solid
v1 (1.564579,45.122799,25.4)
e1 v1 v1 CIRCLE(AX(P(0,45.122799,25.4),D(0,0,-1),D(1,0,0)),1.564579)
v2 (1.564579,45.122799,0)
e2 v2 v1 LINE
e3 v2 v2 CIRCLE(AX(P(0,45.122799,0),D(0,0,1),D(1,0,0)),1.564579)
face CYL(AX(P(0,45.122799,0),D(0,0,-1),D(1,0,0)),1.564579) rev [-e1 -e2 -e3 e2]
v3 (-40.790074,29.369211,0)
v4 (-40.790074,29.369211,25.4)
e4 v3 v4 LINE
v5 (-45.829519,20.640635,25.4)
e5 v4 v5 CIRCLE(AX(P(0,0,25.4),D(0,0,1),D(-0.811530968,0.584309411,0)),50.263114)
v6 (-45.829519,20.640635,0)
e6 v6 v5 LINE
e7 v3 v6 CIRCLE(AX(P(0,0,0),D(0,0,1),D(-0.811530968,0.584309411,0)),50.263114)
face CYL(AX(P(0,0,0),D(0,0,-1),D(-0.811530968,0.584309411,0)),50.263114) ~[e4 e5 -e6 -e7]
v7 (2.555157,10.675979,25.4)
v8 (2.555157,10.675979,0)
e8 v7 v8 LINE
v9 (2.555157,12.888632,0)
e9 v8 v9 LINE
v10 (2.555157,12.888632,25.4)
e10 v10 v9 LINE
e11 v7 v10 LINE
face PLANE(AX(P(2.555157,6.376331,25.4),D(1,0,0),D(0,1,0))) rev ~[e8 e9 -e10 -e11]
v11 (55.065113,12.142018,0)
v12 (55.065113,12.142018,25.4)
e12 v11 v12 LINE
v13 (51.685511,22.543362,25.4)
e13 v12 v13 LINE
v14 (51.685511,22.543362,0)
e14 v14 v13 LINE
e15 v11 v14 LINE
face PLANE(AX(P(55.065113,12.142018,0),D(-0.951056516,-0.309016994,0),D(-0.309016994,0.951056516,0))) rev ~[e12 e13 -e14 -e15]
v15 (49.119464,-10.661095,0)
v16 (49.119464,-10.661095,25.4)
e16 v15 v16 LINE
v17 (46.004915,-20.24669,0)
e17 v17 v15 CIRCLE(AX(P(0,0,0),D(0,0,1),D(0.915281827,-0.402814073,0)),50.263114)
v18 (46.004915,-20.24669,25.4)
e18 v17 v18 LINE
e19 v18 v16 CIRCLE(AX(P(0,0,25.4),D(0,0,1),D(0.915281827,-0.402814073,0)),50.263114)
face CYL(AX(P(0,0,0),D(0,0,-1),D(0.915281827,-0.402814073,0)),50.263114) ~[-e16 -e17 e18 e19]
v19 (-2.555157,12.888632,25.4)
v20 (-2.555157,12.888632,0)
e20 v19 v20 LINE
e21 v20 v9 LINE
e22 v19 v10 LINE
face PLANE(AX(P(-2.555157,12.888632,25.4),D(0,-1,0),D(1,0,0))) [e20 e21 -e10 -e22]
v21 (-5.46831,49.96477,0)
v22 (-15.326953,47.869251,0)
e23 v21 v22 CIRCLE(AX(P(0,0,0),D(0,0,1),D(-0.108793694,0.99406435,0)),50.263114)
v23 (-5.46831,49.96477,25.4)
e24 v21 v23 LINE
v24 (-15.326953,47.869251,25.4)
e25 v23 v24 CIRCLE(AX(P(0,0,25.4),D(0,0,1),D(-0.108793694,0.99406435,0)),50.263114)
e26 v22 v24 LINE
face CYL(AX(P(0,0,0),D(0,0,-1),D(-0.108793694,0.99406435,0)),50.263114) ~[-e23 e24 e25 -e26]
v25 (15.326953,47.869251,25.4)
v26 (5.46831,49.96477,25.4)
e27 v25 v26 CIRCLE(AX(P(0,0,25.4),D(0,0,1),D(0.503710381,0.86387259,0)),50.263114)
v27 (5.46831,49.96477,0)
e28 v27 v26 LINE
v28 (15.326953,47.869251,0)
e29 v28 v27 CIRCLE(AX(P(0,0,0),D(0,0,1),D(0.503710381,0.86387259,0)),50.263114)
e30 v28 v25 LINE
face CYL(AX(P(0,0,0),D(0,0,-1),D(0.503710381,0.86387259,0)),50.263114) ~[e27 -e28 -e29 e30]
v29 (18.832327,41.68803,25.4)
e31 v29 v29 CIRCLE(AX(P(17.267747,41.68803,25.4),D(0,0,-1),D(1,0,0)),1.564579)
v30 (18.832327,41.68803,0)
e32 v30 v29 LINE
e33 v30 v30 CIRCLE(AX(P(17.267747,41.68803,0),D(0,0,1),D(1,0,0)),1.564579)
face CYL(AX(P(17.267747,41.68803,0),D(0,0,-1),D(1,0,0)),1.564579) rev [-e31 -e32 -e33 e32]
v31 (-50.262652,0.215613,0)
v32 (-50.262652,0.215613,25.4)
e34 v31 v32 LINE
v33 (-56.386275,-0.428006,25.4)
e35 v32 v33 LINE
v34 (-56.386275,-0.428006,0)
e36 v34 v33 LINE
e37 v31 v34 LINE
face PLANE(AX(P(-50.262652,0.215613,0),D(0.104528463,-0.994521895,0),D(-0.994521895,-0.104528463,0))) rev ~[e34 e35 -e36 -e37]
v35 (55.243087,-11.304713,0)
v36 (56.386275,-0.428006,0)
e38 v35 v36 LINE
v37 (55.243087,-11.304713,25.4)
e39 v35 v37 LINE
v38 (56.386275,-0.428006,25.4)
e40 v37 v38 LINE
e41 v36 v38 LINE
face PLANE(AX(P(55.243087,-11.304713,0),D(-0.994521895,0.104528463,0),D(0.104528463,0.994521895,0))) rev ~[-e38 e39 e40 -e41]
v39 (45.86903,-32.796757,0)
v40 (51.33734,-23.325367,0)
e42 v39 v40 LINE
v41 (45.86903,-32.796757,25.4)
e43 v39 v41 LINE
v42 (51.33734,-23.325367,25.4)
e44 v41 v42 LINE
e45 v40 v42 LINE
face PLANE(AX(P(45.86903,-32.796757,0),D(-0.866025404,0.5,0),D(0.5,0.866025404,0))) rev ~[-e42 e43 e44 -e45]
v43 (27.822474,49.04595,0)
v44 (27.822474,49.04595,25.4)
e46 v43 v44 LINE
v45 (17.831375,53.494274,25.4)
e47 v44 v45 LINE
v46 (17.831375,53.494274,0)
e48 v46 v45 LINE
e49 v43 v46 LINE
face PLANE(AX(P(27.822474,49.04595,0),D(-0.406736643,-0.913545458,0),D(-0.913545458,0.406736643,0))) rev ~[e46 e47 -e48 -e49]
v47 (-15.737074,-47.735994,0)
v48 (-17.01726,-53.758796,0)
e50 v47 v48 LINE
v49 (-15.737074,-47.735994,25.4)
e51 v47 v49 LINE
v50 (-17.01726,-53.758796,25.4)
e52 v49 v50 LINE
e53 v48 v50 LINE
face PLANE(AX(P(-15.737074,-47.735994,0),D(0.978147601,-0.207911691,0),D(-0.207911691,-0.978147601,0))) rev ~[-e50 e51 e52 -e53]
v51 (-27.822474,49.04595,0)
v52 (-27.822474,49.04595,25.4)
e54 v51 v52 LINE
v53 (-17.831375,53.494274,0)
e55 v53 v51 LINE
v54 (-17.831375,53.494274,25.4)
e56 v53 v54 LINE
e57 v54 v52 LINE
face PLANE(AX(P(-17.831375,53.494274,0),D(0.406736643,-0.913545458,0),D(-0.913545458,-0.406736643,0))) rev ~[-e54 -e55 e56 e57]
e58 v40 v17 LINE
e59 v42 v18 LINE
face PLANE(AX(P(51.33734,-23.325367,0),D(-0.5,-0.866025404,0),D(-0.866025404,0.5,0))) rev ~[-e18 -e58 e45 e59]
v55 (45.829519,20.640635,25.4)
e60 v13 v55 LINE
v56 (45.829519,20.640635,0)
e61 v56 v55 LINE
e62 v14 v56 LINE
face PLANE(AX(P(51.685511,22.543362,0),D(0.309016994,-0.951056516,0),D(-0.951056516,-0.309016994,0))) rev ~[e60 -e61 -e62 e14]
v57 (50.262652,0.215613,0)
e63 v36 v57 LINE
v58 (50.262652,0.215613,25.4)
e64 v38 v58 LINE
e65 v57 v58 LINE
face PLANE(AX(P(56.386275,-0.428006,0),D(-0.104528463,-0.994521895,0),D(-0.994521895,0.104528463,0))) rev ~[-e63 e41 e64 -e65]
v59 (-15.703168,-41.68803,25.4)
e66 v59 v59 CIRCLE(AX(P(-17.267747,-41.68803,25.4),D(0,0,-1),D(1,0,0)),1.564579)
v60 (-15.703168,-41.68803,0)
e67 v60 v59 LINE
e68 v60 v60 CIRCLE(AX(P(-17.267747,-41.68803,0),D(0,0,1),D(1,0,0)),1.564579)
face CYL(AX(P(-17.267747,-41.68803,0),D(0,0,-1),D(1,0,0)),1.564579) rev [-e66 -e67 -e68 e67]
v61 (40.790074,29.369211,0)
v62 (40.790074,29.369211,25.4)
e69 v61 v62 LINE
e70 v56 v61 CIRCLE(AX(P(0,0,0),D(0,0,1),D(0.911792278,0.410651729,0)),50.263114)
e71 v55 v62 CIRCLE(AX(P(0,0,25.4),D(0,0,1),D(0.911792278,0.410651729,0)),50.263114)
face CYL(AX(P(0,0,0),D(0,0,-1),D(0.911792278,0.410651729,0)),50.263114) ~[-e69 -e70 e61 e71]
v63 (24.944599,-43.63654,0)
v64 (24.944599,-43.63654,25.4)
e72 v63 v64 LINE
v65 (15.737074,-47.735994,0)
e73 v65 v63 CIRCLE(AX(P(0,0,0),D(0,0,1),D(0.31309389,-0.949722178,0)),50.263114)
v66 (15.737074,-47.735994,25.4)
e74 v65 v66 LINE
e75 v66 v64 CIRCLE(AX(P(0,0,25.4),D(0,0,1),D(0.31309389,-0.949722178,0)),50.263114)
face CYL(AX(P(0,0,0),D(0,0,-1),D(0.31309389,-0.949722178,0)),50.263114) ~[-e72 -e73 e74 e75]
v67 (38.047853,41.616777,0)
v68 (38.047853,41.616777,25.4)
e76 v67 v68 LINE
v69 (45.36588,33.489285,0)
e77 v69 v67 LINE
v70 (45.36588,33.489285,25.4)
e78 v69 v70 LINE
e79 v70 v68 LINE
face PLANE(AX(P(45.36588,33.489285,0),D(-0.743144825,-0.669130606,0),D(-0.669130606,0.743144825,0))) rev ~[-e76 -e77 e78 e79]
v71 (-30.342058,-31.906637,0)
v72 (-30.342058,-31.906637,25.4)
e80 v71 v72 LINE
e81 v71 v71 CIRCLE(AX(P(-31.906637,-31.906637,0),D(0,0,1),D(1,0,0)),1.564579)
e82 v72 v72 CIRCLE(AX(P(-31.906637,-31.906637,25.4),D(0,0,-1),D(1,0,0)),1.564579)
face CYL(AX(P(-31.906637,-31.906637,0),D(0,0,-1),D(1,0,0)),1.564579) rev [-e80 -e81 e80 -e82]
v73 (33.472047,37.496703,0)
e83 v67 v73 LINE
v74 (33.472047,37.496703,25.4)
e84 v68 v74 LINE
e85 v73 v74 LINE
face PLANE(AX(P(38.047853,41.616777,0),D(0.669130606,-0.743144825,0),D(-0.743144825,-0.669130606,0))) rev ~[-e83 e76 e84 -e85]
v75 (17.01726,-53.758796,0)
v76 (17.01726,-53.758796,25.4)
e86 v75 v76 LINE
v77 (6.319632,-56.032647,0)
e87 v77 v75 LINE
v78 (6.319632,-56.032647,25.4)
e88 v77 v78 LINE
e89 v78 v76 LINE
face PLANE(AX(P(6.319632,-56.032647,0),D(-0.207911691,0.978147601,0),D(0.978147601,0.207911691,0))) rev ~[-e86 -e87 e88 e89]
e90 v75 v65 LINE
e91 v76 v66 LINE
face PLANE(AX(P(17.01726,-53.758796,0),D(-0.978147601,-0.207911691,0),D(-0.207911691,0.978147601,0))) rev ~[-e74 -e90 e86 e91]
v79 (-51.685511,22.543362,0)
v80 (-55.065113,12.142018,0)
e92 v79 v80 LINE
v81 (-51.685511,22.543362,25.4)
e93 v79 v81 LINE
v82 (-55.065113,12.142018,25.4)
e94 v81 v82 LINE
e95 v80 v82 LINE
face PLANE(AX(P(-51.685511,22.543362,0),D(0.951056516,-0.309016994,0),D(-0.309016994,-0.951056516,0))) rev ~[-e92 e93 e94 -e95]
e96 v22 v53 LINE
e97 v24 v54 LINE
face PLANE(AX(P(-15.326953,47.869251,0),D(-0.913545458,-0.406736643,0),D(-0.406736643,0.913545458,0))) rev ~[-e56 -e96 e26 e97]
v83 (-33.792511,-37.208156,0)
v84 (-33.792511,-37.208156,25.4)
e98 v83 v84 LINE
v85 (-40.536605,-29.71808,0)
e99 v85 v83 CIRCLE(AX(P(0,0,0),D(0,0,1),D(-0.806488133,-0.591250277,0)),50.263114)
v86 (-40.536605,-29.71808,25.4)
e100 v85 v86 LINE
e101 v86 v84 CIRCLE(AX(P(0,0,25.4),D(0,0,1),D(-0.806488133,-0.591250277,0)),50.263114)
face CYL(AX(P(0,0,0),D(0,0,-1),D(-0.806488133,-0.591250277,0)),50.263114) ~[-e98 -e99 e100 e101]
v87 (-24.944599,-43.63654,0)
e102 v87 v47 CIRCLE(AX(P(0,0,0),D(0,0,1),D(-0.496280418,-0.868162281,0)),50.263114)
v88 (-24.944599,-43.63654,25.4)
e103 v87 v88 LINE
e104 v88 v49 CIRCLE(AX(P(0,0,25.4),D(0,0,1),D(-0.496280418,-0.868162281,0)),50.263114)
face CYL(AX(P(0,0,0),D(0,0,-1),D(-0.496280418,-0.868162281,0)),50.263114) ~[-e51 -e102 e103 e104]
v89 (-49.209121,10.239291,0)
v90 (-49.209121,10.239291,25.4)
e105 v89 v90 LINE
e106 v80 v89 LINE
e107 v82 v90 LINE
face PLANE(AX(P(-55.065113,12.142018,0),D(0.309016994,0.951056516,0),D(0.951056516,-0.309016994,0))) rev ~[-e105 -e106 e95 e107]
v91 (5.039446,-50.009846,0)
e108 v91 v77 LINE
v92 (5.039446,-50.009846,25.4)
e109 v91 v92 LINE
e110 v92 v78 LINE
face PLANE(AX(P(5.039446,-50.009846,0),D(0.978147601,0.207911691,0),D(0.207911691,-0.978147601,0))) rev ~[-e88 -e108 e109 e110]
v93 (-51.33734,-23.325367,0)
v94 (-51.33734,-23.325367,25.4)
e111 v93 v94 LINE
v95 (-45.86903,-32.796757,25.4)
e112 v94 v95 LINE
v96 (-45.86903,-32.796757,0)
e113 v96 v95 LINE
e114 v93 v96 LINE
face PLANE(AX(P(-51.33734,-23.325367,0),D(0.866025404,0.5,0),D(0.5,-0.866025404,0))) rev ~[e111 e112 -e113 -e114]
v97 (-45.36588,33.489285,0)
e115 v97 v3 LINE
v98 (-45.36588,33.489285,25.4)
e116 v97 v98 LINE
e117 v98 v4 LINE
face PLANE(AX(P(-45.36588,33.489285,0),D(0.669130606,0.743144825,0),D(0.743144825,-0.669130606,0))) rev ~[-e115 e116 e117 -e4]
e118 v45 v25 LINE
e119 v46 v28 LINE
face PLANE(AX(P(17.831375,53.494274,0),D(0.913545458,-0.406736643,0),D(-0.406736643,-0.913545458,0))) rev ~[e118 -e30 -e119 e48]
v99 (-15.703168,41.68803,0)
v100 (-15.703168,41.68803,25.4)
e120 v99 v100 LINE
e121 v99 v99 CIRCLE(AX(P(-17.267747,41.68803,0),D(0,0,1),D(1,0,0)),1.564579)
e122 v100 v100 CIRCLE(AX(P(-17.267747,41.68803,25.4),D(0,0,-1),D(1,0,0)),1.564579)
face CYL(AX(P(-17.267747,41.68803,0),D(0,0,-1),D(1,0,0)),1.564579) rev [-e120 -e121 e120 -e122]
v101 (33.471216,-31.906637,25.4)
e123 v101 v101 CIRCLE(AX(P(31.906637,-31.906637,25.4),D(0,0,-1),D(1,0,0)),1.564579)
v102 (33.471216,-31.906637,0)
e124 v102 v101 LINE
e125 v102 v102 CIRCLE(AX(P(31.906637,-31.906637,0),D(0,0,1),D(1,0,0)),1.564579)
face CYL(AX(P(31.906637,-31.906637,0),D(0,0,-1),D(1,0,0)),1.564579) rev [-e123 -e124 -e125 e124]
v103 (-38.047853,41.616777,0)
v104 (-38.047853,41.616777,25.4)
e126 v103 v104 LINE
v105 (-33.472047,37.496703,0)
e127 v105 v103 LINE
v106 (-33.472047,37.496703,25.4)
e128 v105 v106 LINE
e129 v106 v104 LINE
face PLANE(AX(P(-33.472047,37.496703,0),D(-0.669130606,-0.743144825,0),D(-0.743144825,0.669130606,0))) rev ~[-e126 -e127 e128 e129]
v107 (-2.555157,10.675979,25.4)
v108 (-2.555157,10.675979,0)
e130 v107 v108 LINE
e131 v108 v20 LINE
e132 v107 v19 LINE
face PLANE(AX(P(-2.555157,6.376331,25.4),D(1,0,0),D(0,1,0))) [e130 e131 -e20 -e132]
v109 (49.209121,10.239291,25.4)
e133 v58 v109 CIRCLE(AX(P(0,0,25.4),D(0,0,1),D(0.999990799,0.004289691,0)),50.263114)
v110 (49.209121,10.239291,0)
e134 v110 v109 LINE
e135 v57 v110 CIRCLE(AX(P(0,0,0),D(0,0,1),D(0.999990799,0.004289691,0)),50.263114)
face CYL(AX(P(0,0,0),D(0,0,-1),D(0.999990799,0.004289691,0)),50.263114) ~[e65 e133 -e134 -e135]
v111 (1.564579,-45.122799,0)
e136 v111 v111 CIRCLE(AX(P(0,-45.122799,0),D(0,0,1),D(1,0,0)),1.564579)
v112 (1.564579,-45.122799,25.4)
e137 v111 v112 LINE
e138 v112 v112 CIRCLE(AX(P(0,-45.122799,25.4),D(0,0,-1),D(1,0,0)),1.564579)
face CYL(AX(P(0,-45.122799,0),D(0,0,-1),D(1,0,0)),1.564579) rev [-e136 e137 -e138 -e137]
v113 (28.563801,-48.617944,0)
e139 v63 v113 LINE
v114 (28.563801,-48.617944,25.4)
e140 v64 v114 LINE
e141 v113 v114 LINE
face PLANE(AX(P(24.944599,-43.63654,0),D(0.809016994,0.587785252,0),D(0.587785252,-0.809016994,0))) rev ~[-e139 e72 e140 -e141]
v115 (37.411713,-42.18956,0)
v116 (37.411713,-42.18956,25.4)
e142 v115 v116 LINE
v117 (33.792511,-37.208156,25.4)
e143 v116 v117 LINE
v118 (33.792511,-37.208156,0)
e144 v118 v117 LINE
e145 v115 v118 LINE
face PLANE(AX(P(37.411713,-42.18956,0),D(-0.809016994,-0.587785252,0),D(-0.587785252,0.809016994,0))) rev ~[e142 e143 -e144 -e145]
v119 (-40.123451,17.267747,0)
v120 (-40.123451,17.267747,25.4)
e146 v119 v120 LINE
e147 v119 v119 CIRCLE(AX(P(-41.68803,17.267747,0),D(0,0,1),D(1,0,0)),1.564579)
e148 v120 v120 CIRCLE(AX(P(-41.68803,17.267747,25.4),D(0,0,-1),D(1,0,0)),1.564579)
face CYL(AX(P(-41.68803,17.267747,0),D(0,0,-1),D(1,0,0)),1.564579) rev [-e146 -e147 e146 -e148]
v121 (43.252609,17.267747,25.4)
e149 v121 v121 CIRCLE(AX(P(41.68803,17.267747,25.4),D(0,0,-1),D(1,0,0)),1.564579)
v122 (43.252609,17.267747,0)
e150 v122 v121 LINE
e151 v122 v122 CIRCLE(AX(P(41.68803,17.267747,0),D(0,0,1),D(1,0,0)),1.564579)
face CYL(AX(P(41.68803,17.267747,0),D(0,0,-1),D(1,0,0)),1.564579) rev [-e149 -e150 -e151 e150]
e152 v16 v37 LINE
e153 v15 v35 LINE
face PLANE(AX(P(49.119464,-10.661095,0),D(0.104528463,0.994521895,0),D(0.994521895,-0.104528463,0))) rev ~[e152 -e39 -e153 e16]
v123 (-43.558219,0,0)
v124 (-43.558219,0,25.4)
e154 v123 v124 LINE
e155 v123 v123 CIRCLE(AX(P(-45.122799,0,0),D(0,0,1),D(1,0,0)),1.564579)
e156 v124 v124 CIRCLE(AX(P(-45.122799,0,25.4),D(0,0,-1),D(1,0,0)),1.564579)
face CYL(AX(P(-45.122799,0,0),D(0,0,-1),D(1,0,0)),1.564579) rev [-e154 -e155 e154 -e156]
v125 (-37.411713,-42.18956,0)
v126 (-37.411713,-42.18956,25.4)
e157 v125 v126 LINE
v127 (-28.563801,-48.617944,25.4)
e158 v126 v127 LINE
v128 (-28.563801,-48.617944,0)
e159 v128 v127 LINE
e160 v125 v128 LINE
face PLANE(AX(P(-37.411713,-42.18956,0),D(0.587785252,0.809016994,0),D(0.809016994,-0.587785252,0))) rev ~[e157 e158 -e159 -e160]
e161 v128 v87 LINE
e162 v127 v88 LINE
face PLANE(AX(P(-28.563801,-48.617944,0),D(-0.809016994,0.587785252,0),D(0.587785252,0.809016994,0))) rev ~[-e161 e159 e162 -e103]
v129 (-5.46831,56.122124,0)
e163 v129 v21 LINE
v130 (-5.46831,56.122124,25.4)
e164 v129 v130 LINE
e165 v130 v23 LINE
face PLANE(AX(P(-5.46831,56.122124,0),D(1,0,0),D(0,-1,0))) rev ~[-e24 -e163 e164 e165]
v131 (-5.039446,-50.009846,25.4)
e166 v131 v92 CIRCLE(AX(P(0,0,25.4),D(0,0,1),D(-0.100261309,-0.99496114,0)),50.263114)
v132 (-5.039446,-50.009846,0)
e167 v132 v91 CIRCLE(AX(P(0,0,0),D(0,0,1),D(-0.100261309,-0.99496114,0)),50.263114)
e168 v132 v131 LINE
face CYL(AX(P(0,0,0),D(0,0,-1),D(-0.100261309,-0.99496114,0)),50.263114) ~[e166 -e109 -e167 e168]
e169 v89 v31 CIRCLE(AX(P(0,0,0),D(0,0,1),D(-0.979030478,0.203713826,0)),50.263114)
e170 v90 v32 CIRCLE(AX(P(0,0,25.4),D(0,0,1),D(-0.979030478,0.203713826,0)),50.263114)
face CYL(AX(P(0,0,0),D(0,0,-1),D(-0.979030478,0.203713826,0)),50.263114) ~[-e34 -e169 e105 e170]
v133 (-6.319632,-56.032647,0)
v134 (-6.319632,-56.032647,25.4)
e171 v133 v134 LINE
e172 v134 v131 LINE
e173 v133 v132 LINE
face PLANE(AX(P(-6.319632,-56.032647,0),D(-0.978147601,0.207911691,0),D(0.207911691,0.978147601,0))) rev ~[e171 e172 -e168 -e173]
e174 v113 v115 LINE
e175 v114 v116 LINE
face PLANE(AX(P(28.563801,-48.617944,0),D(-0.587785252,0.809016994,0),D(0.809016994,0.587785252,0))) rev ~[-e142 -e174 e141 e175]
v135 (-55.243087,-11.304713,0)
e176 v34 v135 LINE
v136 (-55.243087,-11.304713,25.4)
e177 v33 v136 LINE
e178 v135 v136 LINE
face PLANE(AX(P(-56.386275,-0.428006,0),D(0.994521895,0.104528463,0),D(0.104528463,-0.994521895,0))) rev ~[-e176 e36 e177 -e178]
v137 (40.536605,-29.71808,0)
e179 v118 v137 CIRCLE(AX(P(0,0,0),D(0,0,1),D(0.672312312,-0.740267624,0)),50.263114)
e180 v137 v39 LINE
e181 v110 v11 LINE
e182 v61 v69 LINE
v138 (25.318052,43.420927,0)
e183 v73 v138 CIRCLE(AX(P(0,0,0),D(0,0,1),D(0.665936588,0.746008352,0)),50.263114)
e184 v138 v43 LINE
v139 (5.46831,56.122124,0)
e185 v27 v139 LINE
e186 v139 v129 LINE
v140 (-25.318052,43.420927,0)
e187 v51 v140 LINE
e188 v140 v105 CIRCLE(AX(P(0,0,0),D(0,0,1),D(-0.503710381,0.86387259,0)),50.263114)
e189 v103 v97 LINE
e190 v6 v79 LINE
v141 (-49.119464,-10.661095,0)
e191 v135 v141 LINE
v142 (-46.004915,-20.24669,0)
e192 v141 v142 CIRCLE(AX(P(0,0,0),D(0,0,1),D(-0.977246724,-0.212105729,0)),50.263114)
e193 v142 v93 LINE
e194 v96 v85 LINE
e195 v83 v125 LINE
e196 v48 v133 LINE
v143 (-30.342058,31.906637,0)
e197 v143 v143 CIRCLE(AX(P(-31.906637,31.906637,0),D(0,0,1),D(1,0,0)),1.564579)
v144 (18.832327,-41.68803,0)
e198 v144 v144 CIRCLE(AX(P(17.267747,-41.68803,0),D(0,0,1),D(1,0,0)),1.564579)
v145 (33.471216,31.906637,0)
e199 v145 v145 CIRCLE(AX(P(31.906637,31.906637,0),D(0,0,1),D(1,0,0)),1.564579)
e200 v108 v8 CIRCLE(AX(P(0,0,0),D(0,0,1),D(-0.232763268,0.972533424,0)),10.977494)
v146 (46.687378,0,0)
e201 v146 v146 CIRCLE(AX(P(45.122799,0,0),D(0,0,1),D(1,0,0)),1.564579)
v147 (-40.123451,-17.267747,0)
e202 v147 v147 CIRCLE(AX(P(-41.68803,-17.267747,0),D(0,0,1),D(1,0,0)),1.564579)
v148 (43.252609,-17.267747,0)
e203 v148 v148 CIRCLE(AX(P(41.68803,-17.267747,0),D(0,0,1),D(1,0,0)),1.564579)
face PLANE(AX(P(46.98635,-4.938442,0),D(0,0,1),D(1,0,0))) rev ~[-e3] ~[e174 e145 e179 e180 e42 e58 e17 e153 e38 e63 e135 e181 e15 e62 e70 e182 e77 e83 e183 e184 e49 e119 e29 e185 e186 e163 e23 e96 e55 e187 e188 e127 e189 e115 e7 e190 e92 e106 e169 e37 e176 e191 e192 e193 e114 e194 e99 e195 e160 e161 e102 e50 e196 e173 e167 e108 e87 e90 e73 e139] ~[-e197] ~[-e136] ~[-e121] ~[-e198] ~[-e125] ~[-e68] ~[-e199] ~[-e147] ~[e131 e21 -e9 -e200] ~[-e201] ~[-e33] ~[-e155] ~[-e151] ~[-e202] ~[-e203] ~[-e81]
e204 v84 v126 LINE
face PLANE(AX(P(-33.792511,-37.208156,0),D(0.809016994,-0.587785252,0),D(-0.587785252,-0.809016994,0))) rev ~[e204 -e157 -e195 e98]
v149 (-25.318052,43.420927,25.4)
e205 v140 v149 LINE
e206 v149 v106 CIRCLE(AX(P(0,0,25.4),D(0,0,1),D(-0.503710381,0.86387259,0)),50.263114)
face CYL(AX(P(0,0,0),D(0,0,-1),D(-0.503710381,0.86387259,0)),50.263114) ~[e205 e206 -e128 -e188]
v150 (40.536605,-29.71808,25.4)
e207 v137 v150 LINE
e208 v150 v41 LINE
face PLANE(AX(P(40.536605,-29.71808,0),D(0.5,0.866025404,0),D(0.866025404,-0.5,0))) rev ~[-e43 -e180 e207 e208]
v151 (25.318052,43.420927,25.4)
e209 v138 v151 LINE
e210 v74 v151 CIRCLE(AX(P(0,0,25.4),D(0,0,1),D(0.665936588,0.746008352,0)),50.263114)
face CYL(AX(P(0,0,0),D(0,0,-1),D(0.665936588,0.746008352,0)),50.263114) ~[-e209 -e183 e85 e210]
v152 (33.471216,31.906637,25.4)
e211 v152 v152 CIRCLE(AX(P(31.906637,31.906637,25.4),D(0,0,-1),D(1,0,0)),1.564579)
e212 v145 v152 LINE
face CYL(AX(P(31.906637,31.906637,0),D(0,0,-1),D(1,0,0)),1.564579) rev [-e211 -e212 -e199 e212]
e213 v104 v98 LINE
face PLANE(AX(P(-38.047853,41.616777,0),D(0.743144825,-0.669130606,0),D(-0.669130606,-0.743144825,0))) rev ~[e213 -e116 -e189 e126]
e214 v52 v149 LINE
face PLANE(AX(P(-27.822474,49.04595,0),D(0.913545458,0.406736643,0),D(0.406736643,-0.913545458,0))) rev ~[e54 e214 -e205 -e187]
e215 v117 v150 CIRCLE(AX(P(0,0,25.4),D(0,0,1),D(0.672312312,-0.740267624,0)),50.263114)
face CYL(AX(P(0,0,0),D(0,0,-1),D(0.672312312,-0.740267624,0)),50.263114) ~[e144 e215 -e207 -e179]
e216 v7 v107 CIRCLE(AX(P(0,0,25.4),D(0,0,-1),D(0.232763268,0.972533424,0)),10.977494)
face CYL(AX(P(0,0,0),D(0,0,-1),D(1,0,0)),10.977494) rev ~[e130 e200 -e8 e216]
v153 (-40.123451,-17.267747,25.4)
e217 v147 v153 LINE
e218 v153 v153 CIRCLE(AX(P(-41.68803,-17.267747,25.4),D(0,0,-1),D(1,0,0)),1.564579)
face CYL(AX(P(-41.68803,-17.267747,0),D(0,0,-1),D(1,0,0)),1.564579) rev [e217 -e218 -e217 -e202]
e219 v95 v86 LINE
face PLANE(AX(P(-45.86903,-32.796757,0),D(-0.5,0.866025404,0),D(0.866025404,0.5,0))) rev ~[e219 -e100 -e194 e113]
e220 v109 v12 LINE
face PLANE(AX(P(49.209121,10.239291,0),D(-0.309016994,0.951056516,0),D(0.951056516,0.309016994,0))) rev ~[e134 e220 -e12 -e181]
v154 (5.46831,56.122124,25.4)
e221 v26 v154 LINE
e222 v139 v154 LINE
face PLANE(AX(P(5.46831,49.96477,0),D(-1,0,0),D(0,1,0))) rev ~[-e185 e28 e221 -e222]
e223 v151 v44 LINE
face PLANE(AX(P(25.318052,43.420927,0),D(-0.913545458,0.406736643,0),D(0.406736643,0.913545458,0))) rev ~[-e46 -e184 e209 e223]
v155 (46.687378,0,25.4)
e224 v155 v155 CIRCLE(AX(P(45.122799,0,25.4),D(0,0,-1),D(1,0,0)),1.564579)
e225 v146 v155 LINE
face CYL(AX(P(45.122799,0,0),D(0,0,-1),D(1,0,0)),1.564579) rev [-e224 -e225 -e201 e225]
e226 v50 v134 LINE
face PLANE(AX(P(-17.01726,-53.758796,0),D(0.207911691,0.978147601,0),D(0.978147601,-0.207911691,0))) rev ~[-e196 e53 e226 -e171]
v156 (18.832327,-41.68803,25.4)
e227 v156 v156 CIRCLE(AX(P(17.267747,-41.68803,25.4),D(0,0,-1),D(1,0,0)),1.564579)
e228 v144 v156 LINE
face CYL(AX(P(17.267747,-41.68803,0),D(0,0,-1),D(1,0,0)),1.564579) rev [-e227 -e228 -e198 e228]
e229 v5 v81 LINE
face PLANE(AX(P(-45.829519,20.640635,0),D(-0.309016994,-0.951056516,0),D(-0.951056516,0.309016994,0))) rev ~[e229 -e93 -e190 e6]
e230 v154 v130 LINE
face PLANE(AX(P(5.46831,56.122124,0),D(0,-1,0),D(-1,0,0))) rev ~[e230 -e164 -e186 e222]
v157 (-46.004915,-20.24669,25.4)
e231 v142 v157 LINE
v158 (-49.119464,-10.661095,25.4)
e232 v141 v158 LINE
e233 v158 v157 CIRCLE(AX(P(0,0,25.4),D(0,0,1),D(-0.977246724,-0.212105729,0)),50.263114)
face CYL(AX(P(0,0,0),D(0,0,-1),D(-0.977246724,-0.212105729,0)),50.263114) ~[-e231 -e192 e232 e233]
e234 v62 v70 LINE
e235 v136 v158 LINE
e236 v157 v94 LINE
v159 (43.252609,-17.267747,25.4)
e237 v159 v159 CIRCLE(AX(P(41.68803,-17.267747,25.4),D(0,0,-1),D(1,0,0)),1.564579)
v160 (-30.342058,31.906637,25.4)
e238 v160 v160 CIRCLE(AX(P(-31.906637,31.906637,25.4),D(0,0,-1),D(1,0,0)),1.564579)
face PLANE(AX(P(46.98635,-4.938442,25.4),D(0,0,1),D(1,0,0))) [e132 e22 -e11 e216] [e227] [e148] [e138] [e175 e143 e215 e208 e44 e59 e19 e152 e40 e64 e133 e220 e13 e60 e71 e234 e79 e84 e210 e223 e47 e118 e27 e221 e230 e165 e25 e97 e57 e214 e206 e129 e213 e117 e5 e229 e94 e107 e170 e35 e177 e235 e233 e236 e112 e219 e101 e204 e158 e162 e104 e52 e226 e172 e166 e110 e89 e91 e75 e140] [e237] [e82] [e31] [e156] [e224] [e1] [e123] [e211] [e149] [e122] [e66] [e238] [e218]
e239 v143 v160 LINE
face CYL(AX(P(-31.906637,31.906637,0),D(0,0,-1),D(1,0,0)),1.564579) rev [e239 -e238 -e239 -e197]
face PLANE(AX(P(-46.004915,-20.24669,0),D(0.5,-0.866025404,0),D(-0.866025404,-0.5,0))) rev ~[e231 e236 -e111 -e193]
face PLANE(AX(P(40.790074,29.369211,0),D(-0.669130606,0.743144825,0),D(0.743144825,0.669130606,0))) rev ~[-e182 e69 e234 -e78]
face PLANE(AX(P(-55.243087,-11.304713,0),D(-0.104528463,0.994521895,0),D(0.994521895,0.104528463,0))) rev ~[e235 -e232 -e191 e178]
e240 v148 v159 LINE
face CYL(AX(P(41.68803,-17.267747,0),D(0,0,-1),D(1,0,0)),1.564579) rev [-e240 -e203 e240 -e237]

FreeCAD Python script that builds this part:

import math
import FreeCAD as App
import Part
import Sketcher
from FreeCAD import Vector
Q = App.Units.Quantity


def add_polygon(sketch, points):
    """Adds a closed chain of lines whose ends are joined by coincident constraints."""
    first, n = sketch.GeometryCount, len(points)
    for a, b in zip(points, points[1:] + points[:1]):
        sketch.addGeometry(Part.LineSegment(App.Vector(*a, 0), App.Vector(*b, 0)), False)
    for i in range(n):
        sketch.addConstraint(Sketcher.Constraint("Coincident", first + i, 2, first + (i + 1) % n, 1))

doc = App.newDocument("Part")
params = doc.addObject("Spreadsheet::Sheet", "Params")
for row, (alias, value) in enumerate([
    ("pad1_length", "1 in"),
    ("pocket1_length", "1.95 in"),
    ("pocket2_length", "1.91 in"),
    ("pocket3_length", "173.334096 mm"),
], start=1):
    params.set(f"A{row}", alias)
    params.set(f"B{row}", "=" + value)
    params.setAlias(f"B{row}", alias)

body = doc.addObject("PartDesign::Body", "Body")

sketch1 = body.newObject("Sketcher::SketchObject", "Sketch")
sketch1.AttachmentSupport = (doc.getObject("XY_Plane"), [""])
sketch1.MapMode = "FlatFace"
sketch1.addGeometry([
    Part.LineSegment(Vector(49.119464, -10.661095, 0), Vector(55.243087, -11.304713, 0)),
    Part.LineSegment(Vector(55.243087, -11.304713, 0), Vector(56.386275, -0.428006, 0)),
    Part.LineSegment(Vector(56.386275, -0.428006, 0), Vector(50.262652, 0.215613, 0)),
    Part.ArcOfCircle(Part.Circle(Vector(0, 0, 0), Vector(0, 0, 1), 50.263114), math.radians(0.245782), math.radians(11.754218)),
    Part.LineSegment(Vector(49.209121, 10.239291, 0), Vector(55.065113, 12.142018, 0)),
    Part.LineSegment(Vector(55.065113, 12.142018, 0), Vector(51.685511, 22.543362, 0)),
    Part.LineSegment(Vector(51.685511, 22.543362, 0), Vector(45.829519, 20.640635, 0)),
    Part.ArcOfCircle(Part.Circle(Vector(0, 0, 0), Vector(0, 0, 1), 50.263114), math.radians(24.245782), math.radians(35.754218)),
    Part.LineSegment(Vector(40.790074, 29.369211, 0), Vector(45.36588, 33.489285, 0)),
    Part.LineSegment(Vector(45.36588, 33.489285, 0), Vector(38.047853, 41.616777, 0)),
    Part.LineSegment(Vector(38.047853, 41.616777, 0), Vector(33.472047, 37.496703, 0)),
    Part.ArcOfCircle(Part.Circle(Vector(0, 0, 0), Vector(0, 0, 1), 50.263114), math.radians(48.245782), math.radians(59.754218)),
    Part.LineSegment(Vector(25.318052, 43.420927, 0), Vector(27.822474, 49.04595, 0)),
    Part.LineSegment(Vector(27.822474, 49.04595, 0), Vector(17.831375, 53.494274, 0)),
    Part.LineSegment(Vector(17.831375, 53.494274, 0), Vector(15.326953, 47.869251, 0)),
    Part.ArcOfCircle(Part.Circle(Vector(0, 0, 0), Vector(0, 0, 1), 50.263114), math.radians(72.245782), math.radians(83.754218)),
    Part.LineSegment(Vector(5.46831, 49.96477, 0), Vector(5.46831, 56.122124, 0)),
    Part.LineSegment(Vector(5.46831, 56.122124, 0), Vector(-5.46831, 56.122124, 0)),
    Part.LineSegment(Vector(-5.46831, 56.122124, 0), Vector(-5.46831, 49.96477, 0)),
    Part.ArcOfCircle(Part.Circle(Vector(0, 0, 0), Vector(0, 0, 1), 50.263114), math.radians(96.245782), math.radians(107.754218)),
    Part.LineSegment(Vector(-15.326953, 47.869251, 0), Vector(-17.831375, 53.494274, 0)),
    Part.LineSegment(Vector(-17.831375, 53.494274, 0), Vector(-27.822474, 49.04595, 0)),
    Part.LineSegment(Vector(-27.822474, 49.04595, 0), Vector(-25.318052, 43.420927, 0)),
    Part.ArcOfCircle(Part.Circle(Vector(0, 0, 0), Vector(0, 0, 1), 50.263114), math.radians(120.245782), math.radians(131.754218)),
    Part.LineSegment(Vector(-33.472047, 37.496703, 0), Vector(-38.047853, 41.616777, 0)),
    Part.LineSegment(Vector(-38.047853, 41.616777, 0), Vector(-45.36588, 33.489285, 0)),
    Part.LineSegment(Vector(-45.36588, 33.489285, 0), Vector(-40.790074, 29.369211, 0)),
    Part.ArcOfCircle(Part.Circle(Vector(0, 0, 0), Vector(0, 0, 1), 50.263114), math.radians(144.245782), math.radians(155.754218)),
    Part.LineSegment(Vector(-45.829519, 20.640635, 0), Vector(-51.685511, 22.543362, 0)),
    Part.LineSegment(Vector(-51.685511, 22.543362, 0), Vector(-55.065113, 12.142018, 0)),
    Part.LineSegment(Vector(-55.065113, 12.142018, 0), Vector(-49.209121, 10.239291, 0)),
    Part.ArcOfCircle(Part.Circle(Vector(0, 0, 0), Vector(0, 0, 1), 50.263114), math.radians(168.245782), math.radians(179.754218)),
    Part.LineSegment(Vector(-50.262652, 0.215613, 0), Vector(-56.386275, -0.428006, 0)),
    Part.LineSegment(Vector(-56.386275, -0.428006, 0), Vector(-55.243087, -11.304713, 0)),
    Part.LineSegment(Vector(-55.243087, -11.304713, 0), Vector(-49.119464, -10.661095, 0)),
    Part.ArcOfCircle(Part.Circle(Vector(0, 0, 0), Vector(0, 0, 1), 50.263114), math.radians(-167.754218), math.radians(-156.245782)),
    Part.LineSegment(Vector(-46.004915, -20.24669, 0), Vector(-51.33734, -23.325367, 0)),
    Part.LineSegment(Vector(-51.33734, -23.325367, 0), Vector(-45.86903, -32.796757, 0)),
    Part.LineSegment(Vector(-45.86903, -32.796757, 0), Vector(-40.536605, -29.71808, 0)),
    Part.ArcOfCircle(Part.Circle(Vector(0, 0, 0), Vector(0, 0, 1), 50.263114), math.radians(-143.754218), math.radians(-132.245782)),
    Part.LineSegment(Vector(-33.792511, -37.208156, 0), Vector(-37.411713, -42.18956, 0)),
    Part.LineSegment(Vector(-37.411713, -42.18956, 0), Vector(-28.563801, -48.617944, 0)),
    Part.LineSegment(Vector(-28.563801, -48.617944, 0), Vector(-24.944599, -43.63654, 0)),
    Part.ArcOfCircle(Part.Circle(Vector(0, 0, 0), Vector(0, 0, 1), 50.263114), math.radians(-119.754218), math.radians(-108.245782)),
    Part.LineSegment(Vector(-15.737074, -47.735994, 0), Vector(-17.01726, -53.758796, 0)),
    Part.LineSegment(Vector(-17.01726, -53.758796, 0), Vector(-6.319632, -56.032647, 0)),
    Part.LineSegment(Vector(-6.319632, -56.032647, 0), Vector(-5.039446, -50.009846, 0)),
    Part.ArcOfCircle(Part.Circle(Vector(0, 0, 0), Vector(0, 0, 1), 50.263114), math.radians(-95.754218), math.radians(-84.245782)),
    Part.LineSegment(Vector(5.039446, -50.009846, 0), Vector(6.319632, -56.032647, 0)),
    Part.LineSegment(Vector(6.319632, -56.032647, 0), Vector(17.01726, -53.758796, 0)),
    Part.LineSegment(Vector(17.01726, -53.758796, 0), Vector(15.737074, -47.735994, 0)),
    Part.ArcOfCircle(Part.Circle(Vector(0, 0, 0), Vector(0, 0, 1), 50.263114), math.radians(-71.754218), math.radians(-60.245782)),
    Part.LineSegment(Vector(24.944599, -43.63654, 0), Vector(28.563801, -48.617944, 0)),
    Part.LineSegment(Vector(28.563801, -48.617944, 0), Vector(37.411713, -42.18956, 0)),
    Part.LineSegment(Vector(37.411713, -42.18956, 0), Vector(33.792511, -37.208156, 0)),
    Part.ArcOfCircle(Part.Circle(Vector(0, 0, 0), Vector(0, 0, 1), 50.263114), math.radians(-47.754218), math.radians(-36.245782)),
    Part.LineSegment(Vector(40.536605, -29.71808, 0), Vector(45.86903, -32.796757, 0)),
    Part.LineSegment(Vector(45.86903, -32.796757, 0), Vector(51.33734, -23.325367, 0)),
    Part.LineSegment(Vector(51.33734, -23.325367, 0), Vector(46.004915, -20.24669, 0)),
    Part.ArcOfCircle(Part.Circle(Vector(0, 0, 0), Vector(0, 0, 1), 50.263114), math.radians(-23.754218), math.radians(-12.245782)),
], False)
sketch1.addConstraint([
    Sketcher.Constraint("Coincident", 0, 2, 1, 1),
    Sketcher.Constraint("Coincident", 1, 2, 2, 1),
    Sketcher.Constraint("Coincident", 2, 2, 3, 1),
    Sketcher.Constraint("Coincident", 3, 2, 4, 1),
    Sketcher.Constraint("Coincident", 4, 2, 5, 1),
    Sketcher.Constraint("Coincident", 5, 2, 6, 1),
    Sketcher.Constraint("Coincident", 6, 2, 7, 1),
    Sketcher.Constraint("Coincident", 7, 2, 8, 1),
    Sketcher.Constraint("Coincident", 8, 2, 9, 1),
    Sketcher.Constraint("Coincident", 9, 2, 10, 1),
    Sketcher.Constraint("Coincident", 10, 2, 11, 1),
    Sketcher.Constraint("Coincident", 11, 2, 12, 1),
    Sketcher.Constraint("Coincident", 12, 2, 13, 1),
    Sketcher.Constraint("Coincident", 13, 2, 14, 1),
    Sketcher.Constraint("Coincident", 14, 2, 15, 1),
    Sketcher.Constraint("Coincident", 15, 2, 16, 1),
    Sketcher.Constraint("Coincident", 16, 2, 17, 1),
    Sketcher.Constraint("Coincident", 17, 2, 18, 1),
    Sketcher.Constraint("Coincident", 18, 2, 19, 1),
    Sketcher.Constraint("Coincident", 19, 2, 20, 1),
    Sketcher.Constraint("Coincident", 20, 2, 21, 1),
    Sketcher.Constraint("Coincident", 21, 2, 22, 1),
    Sketcher.Constraint("Coincident", 22, 2, 23, 1),
    Sketcher.Constraint("Coincident", 23, 2, 24, 1),
    Sketcher.Constraint("Coincident", 24, 2, 25, 1),
    Sketcher.Constraint("Coincident", 25, 2, 26, 1),
    Sketcher.Constraint("Coincident", 26, 2, 27, 1),
    Sketcher.Constraint("Coincident", 27, 2, 28, 1),
    Sketcher.Constraint("Coincident", 28, 2, 29, 1),
    Sketcher.Constraint("Coincident", 29, 2, 30, 1),
    Sketcher.Constraint("Coincident", 30, 2, 31, 1),
    Sketcher.Constraint("Coincident", 31, 2, 32, 1),
    Sketcher.Constraint("Coincident", 32, 2, 33, 1),
    Sketcher.Constraint("Coincident", 33, 2, 34, 1),
    Sketcher.Constraint("Coincident", 34, 2, 35, 1),
    Sketcher.Constraint("Coincident", 35, 2, 36, 1),
    Sketcher.Constraint("Coincident", 36, 2, 37, 1),
    Sketcher.Constraint("Coincident", 37, 2, 38, 1),
    Sketcher.Constraint("Coincident", 38, 2, 39, 1),
    Sketcher.Constraint("Coincident", 39, 2, 40, 1),
    Sketcher.Constraint("Coincident", 40, 2, 41, 1),
    Sketcher.Constraint("Coincident", 41, 2, 42, 1),
    Sketcher.Constraint("Coincident", 42, 2, 43, 1),
    Sketcher.Constraint("Coincident", 43, 2, 44, 1),
    Sketcher.Constraint("Coincident", 44, 2, 45, 1),
    Sketcher.Constraint("Coincident", 45, 2, 46, 1),
    Sketcher.Constraint("Coincident", 46, 2, 47, 1),
    Sketcher.Constraint("Coincident", 47, 2, 48, 1),
    Sketcher.Constraint("Coincident", 48, 2, 49, 1),
    Sketcher.Constraint("Coincident", 49, 2, 50, 1),
    Sketcher.Constraint("Coincident", 50, 2, 51, 1),
    Sketcher.Constraint("Coincident", 51, 2, 52, 1),
    Sketcher.Constraint("Coincident", 52, 2, 53, 1),
    Sketcher.Constraint("Coincident", 53, 2, 54, 1),
    Sketcher.Constraint("Coincident", 54, 2, 55, 1),
    Sketcher.Constraint("Coincident", 55, 2, 56, 1),
    Sketcher.Constraint("Coincident", 56, 2, 57, 1),
    Sketcher.Constraint("Coincident", 57, 2, 58, 1),
    Sketcher.Constraint("Coincident", 58, 2, 59, 1),
    Sketcher.Constraint("Coincident", 59, 2, 0, 1),
    Sketcher.Constraint("Vertical", 16),
    Sketcher.Constraint("Horizontal", 17),
    Sketcher.Constraint("Vertical", 18),
    Sketcher.Constraint("Coincident", 3, 3, -1, 1),
    Sketcher.Constraint("Coincident", 7, 3, -1, 1),
    Sketcher.Constraint("Coincident", 11, 3, -1, 1),
    Sketcher.Constraint("Coincident", 15, 3, -1, 1),
    Sketcher.Constraint("Coincident", 19, 3, -1, 1),
    Sketcher.Constraint("Coincident", 23, 3, -1, 1),
    Sketcher.Constraint("Coincident", 27, 3, -1, 1),
    Sketcher.Constraint("Coincident", 31, 3, -1, 1),
    Sketcher.Constraint("Coincident", 35, 3, -1, 1),
    Sketcher.Constraint("Coincident", 39, 3, -1, 1),
    Sketcher.Constraint("Coincident", 43, 3, -1, 1),
    Sketcher.Constraint("Coincident", 47, 3, -1, 1),
    Sketcher.Constraint("Coincident", 51, 3, -1, 1),
    Sketcher.Constraint("Coincident", 55, 3, -1, 1),
    Sketcher.Constraint("Coincident", 59, 3, -1, 1),
    Sketcher.Constraint("Equal", 3, 7),
    Sketcher.Constraint("Equal", 7, 11),
    Sketcher.Constraint("Equal", 11, 15),
    Sketcher.Constraint("Equal", 15, 19),
    Sketcher.Constraint("Equal", 19, 23),
    Sketcher.Constraint("Equal", 23, 27),
    Sketcher.Constraint("Equal", 27, 31),
    Sketcher.Constraint("Equal", 31, 35),
    Sketcher.Constraint("Equal", 35, 39),
    Sketcher.Constraint("Equal", 39, 43),
    Sketcher.Constraint("Equal", 43, 47),
    Sketcher.Constraint("Equal", 47, 51),
    Sketcher.Constraint("Equal", 51, 55),
    Sketcher.Constraint("Equal", 55, 59),
    Sketcher.Constraint("Symmetric", 13, 2, 20, 2, -2),
    Sketcher.Constraint("Symmetric", 12, 2, 21, 2, -2),
    Sketcher.Constraint("Symmetric", 9, 2, 24, 2, -2),
    Sketcher.Constraint("Symmetric", 8, 2, 25, 2, -2),
    Sketcher.Constraint("Symmetric", 5, 2, 28, 2, -2),
    Sketcher.Constraint("Symmetric", 4, 2, 29, 2, -2),
    Sketcher.Constraint("Symmetric", 1, 2, 32, 2, -2),
    Sketcher.Constraint("Symmetric", 0, 2, 33, 2, -2),
    Sketcher.Constraint("Symmetric", 45, 2, 48, 2, -2),
    Sketcher.Constraint("Symmetric", 44, 2, 49, 2, -2),
    Sketcher.Constraint("Symmetric", 41, 2, 52, 2, -2),
    Sketcher.Constraint("Symmetric", 40, 2, 53, 2, -2),
    Sketcher.Constraint("Symmetric", 37, 2, 56, 2, -2),
    Sketcher.Constraint("Symmetric", 36, 2, 57, 2, -2),
    Sketcher.Constraint("Perpendicular", 0, 1),
    Sketcher.Constraint("Perpendicular", 1, 2),
    Sketcher.Constraint("Perpendicular", 4, 5),
    Sketcher.Constraint("Perpendicular", 5, 6),
    Sketcher.Constraint("Perpendicular", 8, 9),
    Sketcher.Constraint("Perpendicular", 9, 10),
    Sketcher.Constraint("Perpendicular", 12, 13),
    Sketcher.Constraint("Perpendicular", 13, 14),
    Sketcher.Constraint("Perpendicular", 20, 21),
    Sketcher.Constraint("Perpendicular", 21, 22),
    Sketcher.Constraint("Perpendicular", 24, 25),
    Sketcher.Constraint("Perpendicular", 25, 26),
    Sketcher.Constraint("Perpendicular", 28, 29),
    Sketcher.Constraint("Perpendicular", 29, 30),
    Sketcher.Constraint("Perpendicular", 32, 33),
    Sketcher.Constraint("Perpendicular", 33, 34),
    Sketcher.Constraint("Perpendicular", 36, 37),
    Sketcher.Constraint("Perpendicular", 37, 38),
    Sketcher.Constraint("Perpendicular", 40, 41),
    Sketcher.Constraint("Perpendicular", 41, 42),
    Sketcher.Constraint("Perpendicular", 44, 45),
    Sketcher.Constraint("Perpendicular", 45, 46),
    Sketcher.Constraint("Perpendicular", 48, 49),
    Sketcher.Constraint("Perpendicular", 49, 50),
    Sketcher.Constraint("Perpendicular", 52, 53),
    Sketcher.Constraint("Perpendicular", 53, 54),
    Sketcher.Constraint("Perpendicular", 56, 57),
    Sketcher.Constraint("Perpendicular", 57, 58),
    Sketcher.Constraint("Horizontal", 15, 2, 18, 2),
    Sketcher.Constraint("Equal", 0, 2),
    Sketcher.Constraint("Equal", 2, 4),
    Sketcher.Constraint("Equal", 1, 5),
    Sketcher.Constraint("Equal", 4, 6),
    Sketcher.Constraint("Equal", 6, 8),
    Sketcher.Constraint("Equal", 5, 9),
    Sketcher.Constraint("Equal", 8, 10),
    Sketcher.Constraint("Equal", 10, 12),
    Sketcher.Constraint("Equal", 9, 13),
    Sketcher.Constraint("Equal", 12, 14),
    Sketcher.Constraint("Equal", 34, 36),
    Sketcher.Constraint("Equal", 33, 37),
    Sketcher.Constraint("Equal", 36, 38),
    Sketcher.Constraint("Equal", 38, 40),
    Sketcher.Constraint("Equal", 37, 41),
    Sketcher.Constraint("Equal", 40, 42),
    Sketcher.Constraint("Equal", 42, 44),
    Sketcher.Constraint("Equal", 41, 45),
    Sketcher.Constraint("Equal", 44, 46),
    Sketcher.Constraint("Angle", 0, Q("-6 deg")),
    Sketcher.Constraint("Angle", 4, Q("18 deg")),
    Sketcher.Constraint("Angle", 8, Q("42 deg")),
    Sketcher.Constraint("Angle", 12, Q("66 deg")),
    Sketcher.Constraint("Angle", 36, Q("-150 deg")),
    Sketcher.Constraint("Angle", 40, Q("-126 deg")),
    Sketcher.Constraint("Angle", 44, Q("-102 deg")),
    Sketcher.Constraint("Radius", 3, 50.263114),
    Sketcher.Constraint("DistanceX", 17, 2, 17, 1, 10.93662),
    Sketcher.Constraint("DistanceX", 41, 2, -1, 1, 28.563801),
    Sketcher.Constraint("DistanceX", 42, 2, -1, 1, 24.944599),
    Sketcher.Constraint("DistanceY", 16, 1, 16, 2, 6.157354),
])
pad1 = body.newObject("PartDesign::Pad", "Pad")
pad1.Profile = sketch1
pad1.setExpression("Length", "Params.pad1_length")

sketch2 = body.newObject("Sketcher::SketchObject", "Sketch001")
sketch2.AttachmentSupport = (doc.getObject("XY_Plane"), [""])
sketch2.MapMode = "FlatFace"
sketch2.addGeometry(Part.Circle(Vector(0, 0, 0), Vector(0, 0, 1), 10.977494), False)
sketch2.addConstraint([
    Sketcher.Constraint("Coincident", 0, 3, -1, 1),
    Sketcher.Constraint("Diameter", 0, 21.954987),
])
pocket1 = body.newObject("PartDesign::Pocket", "Pocket")
pocket1.Profile = sketch2
pocket1.setExpression("Length", "Params.pocket1_length")
pocket1.Reversed = True

sketch3 = body.newObject("Sketcher::SketchObject", "Sketch002")
sketch3.AttachmentSupport = (doc.getObject("XY_Plane"), [""])
sketch3.MapMode = "FlatFace"
sketch3.AttachmentOffset = App.Placement(Vector(0, 0, 1 * 25.4), App.Rotation())
add_polygon(sketch3, [(-2.555157, 12.888632), (-2.555157, 6.376331), (2.555157, 6.376331), (2.555157, 12.888632)])
sketch3.addConstraint([
    Sketcher.Constraint("Vertical", 0),
    Sketcher.Constraint("Horizontal", 1),
    Sketcher.Constraint("Vertical", 2),
    Sketcher.Constraint("Horizontal", 3),
    Sketcher.Constraint("DistanceY", 0, 2, 0, 1, 6.512301),
    Sketcher.Constraint("DistanceX", 1, 1, 1, 2, 5.110315),
    Sketcher.Constraint("DistanceY", -1, 1, 0, 2, 6.376331),
    Sketcher.Constraint("DistanceX", 0, 2, -1, 1, 2.555157),
])
pocket2 = body.newObject("PartDesign::Pocket", "Pocket001")
pocket2.Profile = sketch3
pocket2.setExpression("Length", "Params.pocket2_length")

sketch4 = body.newObject("Sketcher::SketchObject", "Sketch003")
sketch4.AttachmentSupport = (doc.getObject("XY_Plane"), [""])
sketch4.MapMode = "FlatFace"
sketch4.addGeometry([
    Part.Circle(Vector(0, 45.122799, 0), Vector(0, 0, 1), 1.564579),
    Part.Circle(Vector(-17.267747, 41.68803, 0), Vector(0, 0, 1), 1.564579),
    Part.Circle(Vector(-31.906637, 31.906637, 0), Vector(0, 0, 1), 1.564579),
    Part.Circle(Vector(-41.68803, 17.267747, 0), Vector(0, 0, 1), 1.564579),
    Part.Circle(Vector(-45.122799, 0, 0), Vector(0, 0, 1), 1.564579),
    Part.Circle(Vector(-41.68803, -17.267747, 0), Vector(0, 0, 1), 1.564579),
    Part.Circle(Vector(-31.906637, -31.906637, 0), Vector(0, 0, 1), 1.564579),
    Part.Circle(Vector(-17.267747, -41.68803, 0), Vector(0, 0, 1), 1.564579),
    Part.Circle(Vector(0, -45.122799, 0), Vector(0, 0, 1), 1.564579),
    Part.Circle(Vector(17.267747, -41.68803, 0), Vector(0, 0, 1), 1.564579),
    Part.Circle(Vector(31.906637, -31.906637, 0), Vector(0, 0, 1), 1.564579),
    Part.Circle(Vector(41.68803, -17.267747, 0), Vector(0, 0, 1), 1.564579),
    Part.Circle(Vector(45.122799, 0, 0), Vector(0, 0, 1), 1.564579),
    Part.Circle(Vector(41.68803, 17.267747, 0), Vector(0, 0, 1), 1.564579),
    Part.Circle(Vector(31.906637, 31.906637, 0), Vector(0, 0, 1), 1.564579),
    Part.Circle(Vector(17.267747, 41.68803, 0), Vector(0, 0, 1), 1.564579),
], False)
sketch4.addConstraint([
    Sketcher.Constraint("Equal", 0, 1),
    Sketcher.Constraint("Equal", 1, 2),
    Sketcher.Constraint("Equal", 2, 3),
    Sketcher.Constraint("Equal", 3, 4),
    Sketcher.Constraint("Equal", 4, 5),
    Sketcher.Constraint("Equal", 5, 6),
    Sketcher.Constraint("Equal", 6, 7),
    Sketcher.Constraint("Equal", 7, 8),
    Sketcher.Constraint("Equal", 8, 9),
    Sketcher.Constraint("Equal", 9, 10),
    Sketcher.Constraint("Equal", 10, 11),
    Sketcher.Constraint("Equal", 11, 12),
    Sketcher.Constraint("Equal", 12, 13),
    Sketcher.Constraint("Equal", 13, 14),
    Sketcher.Constraint("Equal", 14, 15),
    Sketcher.Constraint("Symmetric", 0, 3, 8, 3, -1, 1),
    Sketcher.Constraint("Symmetric", 1, 3, 9, 3, -1, 1),
    Sketcher.Constraint("Symmetric", 2, 3, 10, 3, -1, 1),
    Sketcher.Constraint("Symmetric", 3, 3, 11, 3, -1, 1),
    Sketcher.Constraint("Symmetric", 4, 3, 12, 3, -1, 1),
    Sketcher.Constraint("Symmetric", 5, 3, 13, 3, -1, 1),
    Sketcher.Constraint("Symmetric", 6, 3, 14, 3, -1, 1),
    Sketcher.Constraint("Symmetric", 7, 3, 15, 3, -1, 1),
    Sketcher.Constraint("Symmetric", 7, 3, 9, 3, -2),
    Sketcher.Constraint("Symmetric", 6, 3, 10, 3, -2),
    Sketcher.Constraint("Symmetric", 5, 3, 11, 3, -2),
    Sketcher.Constraint("PointOnObject", 0, 3, -2),
    Sketcher.Constraint("PointOnObject", 4, 3, -1),
    Sketcher.Constraint("Diameter", 0, 3.129159),
    Sketcher.Constraint("DistanceY", -1, 1, 0, 3, 45.122799),
    Sketcher.Constraint("DistanceX", 4, 3, -1, 1, 45.122799),
    Sketcher.Constraint("DistanceY", -1, 1, 1, 3, 41.68803),
    Sketcher.Constraint("DistanceX", 3, 3, -1, 1, 41.68803),
    Sketcher.Constraint("DistanceX", 2, 3, 1, 3, 14.638889),
    Sketcher.Constraint("DistanceY", 2, 3, 0, 3, 13.216162),
    Sketcher.Constraint("DistanceY", 3, 3, 2, 3, 14.638889),
    Sketcher.Constraint("DistanceX", 4, 3, 2, 3, 13.216162),
])
pocket3 = body.newObject("PartDesign::Pocket", "Pocket002")
pocket3.Profile = sketch4
pocket3.setExpression("Length", "Params.pocket3_length")
pocket3.Reversed = True

doc.recompute()
